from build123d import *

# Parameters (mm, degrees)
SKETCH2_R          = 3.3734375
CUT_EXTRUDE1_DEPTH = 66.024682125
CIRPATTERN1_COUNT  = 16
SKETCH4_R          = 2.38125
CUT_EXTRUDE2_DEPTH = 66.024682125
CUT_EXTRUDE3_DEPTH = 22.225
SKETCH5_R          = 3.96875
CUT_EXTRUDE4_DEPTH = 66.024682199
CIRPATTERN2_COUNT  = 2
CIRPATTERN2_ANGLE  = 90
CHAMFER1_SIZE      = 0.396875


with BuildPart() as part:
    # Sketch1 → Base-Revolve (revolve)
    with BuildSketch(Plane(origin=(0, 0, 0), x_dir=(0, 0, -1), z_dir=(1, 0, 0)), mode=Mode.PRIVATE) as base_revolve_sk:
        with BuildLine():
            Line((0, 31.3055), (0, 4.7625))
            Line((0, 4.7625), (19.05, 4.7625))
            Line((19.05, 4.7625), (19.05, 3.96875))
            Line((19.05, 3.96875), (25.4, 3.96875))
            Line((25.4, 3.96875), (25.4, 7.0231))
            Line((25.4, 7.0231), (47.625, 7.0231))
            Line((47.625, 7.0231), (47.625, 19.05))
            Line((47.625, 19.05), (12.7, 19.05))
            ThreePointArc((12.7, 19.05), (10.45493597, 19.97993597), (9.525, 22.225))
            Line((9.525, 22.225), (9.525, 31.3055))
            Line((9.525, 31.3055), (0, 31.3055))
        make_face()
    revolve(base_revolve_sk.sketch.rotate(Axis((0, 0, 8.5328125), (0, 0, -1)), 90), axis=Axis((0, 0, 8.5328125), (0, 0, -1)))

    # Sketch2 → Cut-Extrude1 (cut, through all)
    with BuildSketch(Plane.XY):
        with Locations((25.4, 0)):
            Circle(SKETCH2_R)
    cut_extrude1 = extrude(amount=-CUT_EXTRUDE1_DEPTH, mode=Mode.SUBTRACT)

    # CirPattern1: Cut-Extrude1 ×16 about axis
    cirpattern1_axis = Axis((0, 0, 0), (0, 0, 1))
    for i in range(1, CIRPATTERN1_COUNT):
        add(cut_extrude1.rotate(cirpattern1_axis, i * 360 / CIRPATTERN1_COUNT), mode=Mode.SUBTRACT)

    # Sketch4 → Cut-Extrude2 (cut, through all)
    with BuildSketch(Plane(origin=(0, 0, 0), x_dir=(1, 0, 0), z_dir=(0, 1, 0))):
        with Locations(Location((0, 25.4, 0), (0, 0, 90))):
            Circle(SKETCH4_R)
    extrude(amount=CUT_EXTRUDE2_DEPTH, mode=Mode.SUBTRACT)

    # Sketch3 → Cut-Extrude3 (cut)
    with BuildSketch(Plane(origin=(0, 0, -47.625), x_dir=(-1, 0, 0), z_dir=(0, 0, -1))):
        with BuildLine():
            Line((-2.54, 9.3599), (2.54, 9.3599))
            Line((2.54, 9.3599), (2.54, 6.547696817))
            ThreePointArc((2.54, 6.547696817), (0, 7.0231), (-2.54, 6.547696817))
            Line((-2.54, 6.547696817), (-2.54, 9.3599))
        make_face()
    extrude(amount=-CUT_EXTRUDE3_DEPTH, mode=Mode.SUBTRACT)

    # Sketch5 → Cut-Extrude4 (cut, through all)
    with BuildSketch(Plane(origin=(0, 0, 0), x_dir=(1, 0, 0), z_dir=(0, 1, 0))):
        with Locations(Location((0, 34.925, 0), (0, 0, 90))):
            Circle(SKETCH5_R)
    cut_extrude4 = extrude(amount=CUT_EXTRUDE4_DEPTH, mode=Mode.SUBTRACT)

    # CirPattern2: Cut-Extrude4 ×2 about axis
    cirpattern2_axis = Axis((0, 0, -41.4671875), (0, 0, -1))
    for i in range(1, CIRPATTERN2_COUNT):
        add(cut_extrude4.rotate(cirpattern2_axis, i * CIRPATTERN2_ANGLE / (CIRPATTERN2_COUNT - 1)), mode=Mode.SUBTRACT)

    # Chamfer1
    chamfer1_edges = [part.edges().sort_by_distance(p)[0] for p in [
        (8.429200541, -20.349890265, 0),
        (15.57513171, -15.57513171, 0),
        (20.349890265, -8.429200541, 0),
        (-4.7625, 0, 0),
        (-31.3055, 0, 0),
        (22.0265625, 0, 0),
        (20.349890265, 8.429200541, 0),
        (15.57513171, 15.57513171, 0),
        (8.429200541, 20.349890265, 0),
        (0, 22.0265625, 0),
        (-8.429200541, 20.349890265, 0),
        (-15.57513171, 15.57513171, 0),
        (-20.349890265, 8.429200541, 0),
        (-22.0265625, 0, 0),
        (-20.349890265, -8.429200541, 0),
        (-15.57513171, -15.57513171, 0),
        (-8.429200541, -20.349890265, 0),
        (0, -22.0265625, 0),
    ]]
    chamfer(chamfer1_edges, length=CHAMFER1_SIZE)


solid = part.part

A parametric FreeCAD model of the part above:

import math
import FreeCAD as App
import Part
import Sketcher
Q = App.Units.Quantity


def edges_at(feature, points):
    """Names of the edges that pass closest to the given points."""
    edges = feature.Shape.Edges
    near = lambda p: min(range(len(edges)), key=lambda i: edges[i].distToShape(Part.Vertex(*p))[0])
    return sorted({f"Edge{near(p) + 1}" for p in points})

doc = App.newDocument("Part")
body = doc.addObject("PartDesign::Body", "Body")

sketch1 = body.newObject("Sketcher::SketchObject", "Sketch")
sketch1.AttachmentSupport = (doc.getObject("YZ_Plane"), [""])
sketch1.MapMode = "FlatFace"
sketch1.addGeometry(Part.LineSegment(App.Vector(31.3, 0, 0), App.Vector(4.8, 0, 0)), False)
sketch1.addGeometry(Part.LineSegment(App.Vector(4.8, 0, 0), App.Vector(4.8, -19.1, 0)), False)
sketch1.addGeometry(Part.LineSegment(App.Vector(4.8, -19.1, 0), App.Vector(4, -19.1, 0)), False)
sketch1.addGeometry(Part.LineSegment(App.Vector(4, -19.1, 0), App.Vector(4, -25.4, 0)), False)
sketch1.addGeometry(Part.LineSegment(App.Vector(4, -25.4, 0), App.Vector(7, -25.4, 0)), False)
sketch1.addGeometry(Part.LineSegment(App.Vector(7, -25.4, 0), App.Vector(7, -47.6, 0)), False)
sketch1.addGeometry(Part.LineSegment(App.Vector(7, -47.6, 0), App.Vector(19.1, -47.6, 0)), False)
sketch1.addGeometry(Part.LineSegment(App.Vector(19.1, -47.6, 0), App.Vector(19.1, -12.7, 0)), False)
sketch1.addGeometry(Part.ArcOfCircle(Part.Circle(App.Vector(22.2, -12.7, 0), App.Vector(0, 0, 1), 3.2), math.radians(90), math.radians(180)), False)
sketch1.addGeometry(Part.LineSegment(App.Vector(22.2, -9.5, 0), App.Vector(31.3, -9.5, 0)), False)
sketch1.addGeometry(Part.LineSegment(App.Vector(31.3, -9.5, 0), App.Vector(31.3, 0, 0)), False)
sketch1.addConstraint(Sketcher.Constraint("Coincident", 0, 2, 1, 1))
sketch1.addConstraint(Sketcher.Constraint("Coincident", 1, 2, 2, 1))
sketch1.addConstraint(Sketcher.Constraint("Coincident", 2, 2, 3, 1))
sketch1.addConstraint(Sketcher.Constraint("Coincident", 3, 2, 4, 1))
sketch1.addConstraint(Sketcher.Constraint("Coincident", 4, 2, 5, 1))
sketch1.addConstraint(Sketcher.Constraint("Coincident", 5, 2, 6, 1))
sketch1.addConstraint(Sketcher.Constraint("Coincident", 6, 2, 7, 1))
sketch1.addConstraint(Sketcher.Constraint("Tangent", 7, 2, 8, 2))
sketch1.addConstraint(Sketcher.Constraint("Tangent", 8, 1, 9, 1))
sketch1.addConstraint(Sketcher.Constraint("Coincident", 9, 2, 10, 1))
sketch1.addConstraint(Sketcher.Constraint("Coincident", 10, 2, 0, 1))
sketch1.addConstraint(Sketcher.Constraint("Horizontal", 0))
sketch1.addConstraint(Sketcher.Constraint("Vertical", 1))
sketch1.addConstraint(Sketcher.Constraint("Horizontal", 2))
sketch1.addConstraint(Sketcher.Constraint("Vertical", 3))
sketch1.addConstraint(Sketcher.Constraint("Horizontal", 4))
sketch1.addConstraint(Sketcher.Constraint("Vertical", 5))
sketch1.addConstraint(Sketcher.Constraint("Horizontal", 6))
sketch1.addConstraint(Sketcher.Constraint("Vertical", 7))
sketch1.addConstraint(Sketcher.Constraint("Horizontal", 9))
sketch1.addConstraint(Sketcher.Constraint("Vertical", 10))
sketch1.addConstraint(Sketcher.Constraint("PointOnObject", 0, 2, -1))
sketch1.addConstraint(Sketcher.Constraint("DistanceY", 3, 2, -1, 1, Q("1 in")))
sketch1.addConstraint(Sketcher.Constraint("Radius", 8, Q("0.125 in")))
sketch1.addConstraint(Sketcher.Constraint("DistanceY", 1, 2, 1, 1, Q("0.75 in")))
sketch1.addConstraint(Sketcher.Constraint("DistanceY", 8, 3, -1, 1, Q("0.5 in")))
sketch1.addConstraint(Sketcher.Constraint("DistanceX", 0, 2, 0, 1, Q("1.045 in")))
sketch1.addConstraint(Sketcher.Constraint("DistanceX", 2, 2, 2, 1, Q("0.03125 in")))
sketch1.addConstraint(Sketcher.Constraint("DistanceY", 5, 2, 5, 1, Q("0.875 in")))
sketch1.addConstraint(Sketcher.Constraint("DistanceX", -1, 1, 6, 2, Q("0.75 in")))
sketch1.addConstraint(Sketcher.Constraint("DistanceX", 6, 1, 6, 2, Q("0.4735 in")))
sketch1.addConstraint(Sketcher.Constraint("DistanceX", 9, 1, 9, 2, Q("0.3575 in")))
revolution = body.newObject("PartDesign::Revolution", "Revolution")
revolution.Profile = sketch1
revolution.ReferenceAxis = (sketch1, ["V_Axis"])
revolution.Angle = 360

sketch2 = body.newObject("Sketcher::SketchObject", "Sketch001")
sketch2.AttachmentSupport = (doc.getObject("XY_Plane"), [""])
sketch2.MapMode = "FlatFace"
sketch2.addGeometry(Part.Circle(App.Vector(25.4, 0, 0), App.Vector(0, 0, 1), 3.4), False)
sketch2.addConstraint(Sketcher.Constraint("PointOnObject", 0, 3, -1))
sketch2.addConstraint(Sketcher.Constraint("Diameter", 0, Q("0.265625 in")))
sketch2.addConstraint(Sketcher.Constraint("DistanceX", -1, 1, 0, 3, Q("1 in")))
pocket1 = body.newObject("PartDesign::Pocket", "Pocket")
pocket1.Profile = sketch2
pocket1.Type = "ThroughAll"
doc.recompute()

polarpattern = body.newObject("PartDesign::PolarPattern", "PolarPattern")
polarpattern.Originals = [pocket1]
polarpattern.Axis = (doc.getObject("Z_Axis"), [""])
polarpattern.Angle = 360
polarpattern.Occurrences = 16
body.Tip = polarpattern

sketch3 = body.newObject("Sketcher::SketchObject", "Sketch002")
sketch3.AttachmentSupport = (doc.getObject("XZ_Plane"), [""])
sketch3.MapMode = "FlatFace"
sketch3.addGeometry(Part.Circle(App.Vector(0, -25.4, 0), App.Vector(0, 0, 1), 2.4), False)
sketch3.addConstraint(Sketcher.Constraint("PointOnObject", 0, 3, -2))
sketch3.addConstraint(Sketcher.Constraint("Diameter", 0, Q("0.1875 in")))
sketch3.addConstraint(Sketcher.Constraint("DistanceY", 0, 3, -1, 1, Q("1 in")))
pocket2 = body.newObject("PartDesign::Pocket", "Pocket001")
pocket2.Profile = sketch3
pocket2.Type = "ThroughAll"

sketch4 = body.newObject("Sketcher::SketchObject", "Sketch003")
sketch4.AttachmentSupport = (doc.getObject("XY_Plane"), [""])
sketch4.MapMode = "FlatFace"
sketch4.AttachmentOffset = App.Placement(App.Vector(0, 0, -1.875 * 25.4), App.Rotation())
sketch4.addGeometry(Part.LineSegment(App.Vector(-2.5, 9.4, 0), App.Vector(2.5, 9.4, 0)), False)
sketch4.addGeometry(Part.LineSegment(App.Vector(2.5, 9.4, 0), App.Vector(2.5, 6.5, 0)), False)
sketch4.addGeometry(Part.ArcOfCircle(Part.Circle(App.Vector(0, 0, 0), App.Vector(0, 0, 1), 7), math.radians(69), math.radians(111)), False)
sketch4.addGeometry(Part.LineSegment(App.Vector(-2.5, 6.5, 0), App.Vector(-2.5, 9.4, 0)), False)
sketch4.addConstraint(Sketcher.Constraint("Coincident", 0, 2, 1, 1))
sketch4.addConstraint(Sketcher.Constraint("Coincident", 1, 2, 2, 1))
sketch4.addConstraint(Sketcher.Constraint("Coincident", 2, 2, 3, 1))
sketch4.addConstraint(Sketcher.Constraint("Coincident", 3, 2, 0, 1))
sketch4.addConstraint(Sketcher.Constraint("Horizontal", 0))
sketch4.addConstraint(Sketcher.Constraint("Vertical", 1))
sketch4.addConstraint(Sketcher.Constraint("Vertical", 3))
sketch4.addConstraint(Sketcher.Constraint("Coincident", 2, 3, -1, 1))
sketch4.addConstraint(Sketcher.Constraint("Horizontal", 1, 2, 2, 2))
sketch4.addConstraint(Sketcher.Constraint("DistanceX", 0, 1, 0, 2, Q("0.2 in")))
sketch4.addConstraint(Sketcher.Constraint("Radius", 2, Q("0.2765 in")))
sketch4.addConstraint(Sketcher.Constraint("DistanceY", -1, 1, 0, 2, Q("0.3685 in")))
pocket3 = body.newObject("PartDesign::Pocket", "Pocket002")
pocket3.Profile = sketch4
pocket3.Length = Q("0.875 in")
pocket3.Reversed = True

sketch5 = body.newObject("Sketcher::SketchObject", "Sketch004")
sketch5.AttachmentSupport = (doc.getObject("XZ_Plane"), [""])
sketch5.MapMode = "FlatFace"
sketch5.addGeometry(Part.Circle(App.Vector(0, -34.9, 0), App.Vector(0, 0, 1), 4), False)
sketch5.addConstraint(Sketcher.Constraint("PointOnObject", 0, 3, -2))
sketch5.addConstraint(Sketcher.Constraint("Diameter", 0, Q("0.3125 in")))
sketch5.addConstraint(Sketcher.Constraint("DistanceY", 0, 3, -1, 1, Q("1.375 in")))
pocket4 = body.newObject("PartDesign::Pocket", "Pocket003")
pocket4.Profile = sketch5
pocket4.Type = "ThroughAll"
doc.recompute()

polarpattern2 = body.newObject("PartDesign::PolarPattern", "PolarPattern001")
polarpattern2.Originals = [pocket4]
polarpattern2.Axis = (doc.getObject("Z_Axis"), [""])
polarpattern2.Angle = 90
polarpattern2.Occurrences = 2
polarpattern2.Reversed = True
body.Tip = polarpattern2
doc.recompute()

chamfer = body.newObject("PartDesign::Chamfer", "Chamfer")
chamfer.Base = (polarpattern2, edges_at(polarpattern2, [
    (8.429, -20.35, 0),
    (15.575, -15.575, 0),
    (20.35, -8.429, 0),
    (-4.763, 0, 0),
    (-31.305, 0, 0),
    (22.027, 0, 0),
    (20.35, 8.429, 0),
    (15.575, 15.575, 0),
    (8.429, 20.35, 0),
    (0, 22.027, 0),
    (-8.429, 20.35, 0),
    (-15.575, 15.575, 0),
    (-20.35, 8.429, 0),
    (-22.027, 0, 0),
    (-20.35, -8.429, 0),
    (-15.575, -15.575, 0),
    (-8.429, -20.35, 0),
    (0, -22.027, 0),
]))
chamfer.Size = Q("0.015625 in")

doc.recompute()
